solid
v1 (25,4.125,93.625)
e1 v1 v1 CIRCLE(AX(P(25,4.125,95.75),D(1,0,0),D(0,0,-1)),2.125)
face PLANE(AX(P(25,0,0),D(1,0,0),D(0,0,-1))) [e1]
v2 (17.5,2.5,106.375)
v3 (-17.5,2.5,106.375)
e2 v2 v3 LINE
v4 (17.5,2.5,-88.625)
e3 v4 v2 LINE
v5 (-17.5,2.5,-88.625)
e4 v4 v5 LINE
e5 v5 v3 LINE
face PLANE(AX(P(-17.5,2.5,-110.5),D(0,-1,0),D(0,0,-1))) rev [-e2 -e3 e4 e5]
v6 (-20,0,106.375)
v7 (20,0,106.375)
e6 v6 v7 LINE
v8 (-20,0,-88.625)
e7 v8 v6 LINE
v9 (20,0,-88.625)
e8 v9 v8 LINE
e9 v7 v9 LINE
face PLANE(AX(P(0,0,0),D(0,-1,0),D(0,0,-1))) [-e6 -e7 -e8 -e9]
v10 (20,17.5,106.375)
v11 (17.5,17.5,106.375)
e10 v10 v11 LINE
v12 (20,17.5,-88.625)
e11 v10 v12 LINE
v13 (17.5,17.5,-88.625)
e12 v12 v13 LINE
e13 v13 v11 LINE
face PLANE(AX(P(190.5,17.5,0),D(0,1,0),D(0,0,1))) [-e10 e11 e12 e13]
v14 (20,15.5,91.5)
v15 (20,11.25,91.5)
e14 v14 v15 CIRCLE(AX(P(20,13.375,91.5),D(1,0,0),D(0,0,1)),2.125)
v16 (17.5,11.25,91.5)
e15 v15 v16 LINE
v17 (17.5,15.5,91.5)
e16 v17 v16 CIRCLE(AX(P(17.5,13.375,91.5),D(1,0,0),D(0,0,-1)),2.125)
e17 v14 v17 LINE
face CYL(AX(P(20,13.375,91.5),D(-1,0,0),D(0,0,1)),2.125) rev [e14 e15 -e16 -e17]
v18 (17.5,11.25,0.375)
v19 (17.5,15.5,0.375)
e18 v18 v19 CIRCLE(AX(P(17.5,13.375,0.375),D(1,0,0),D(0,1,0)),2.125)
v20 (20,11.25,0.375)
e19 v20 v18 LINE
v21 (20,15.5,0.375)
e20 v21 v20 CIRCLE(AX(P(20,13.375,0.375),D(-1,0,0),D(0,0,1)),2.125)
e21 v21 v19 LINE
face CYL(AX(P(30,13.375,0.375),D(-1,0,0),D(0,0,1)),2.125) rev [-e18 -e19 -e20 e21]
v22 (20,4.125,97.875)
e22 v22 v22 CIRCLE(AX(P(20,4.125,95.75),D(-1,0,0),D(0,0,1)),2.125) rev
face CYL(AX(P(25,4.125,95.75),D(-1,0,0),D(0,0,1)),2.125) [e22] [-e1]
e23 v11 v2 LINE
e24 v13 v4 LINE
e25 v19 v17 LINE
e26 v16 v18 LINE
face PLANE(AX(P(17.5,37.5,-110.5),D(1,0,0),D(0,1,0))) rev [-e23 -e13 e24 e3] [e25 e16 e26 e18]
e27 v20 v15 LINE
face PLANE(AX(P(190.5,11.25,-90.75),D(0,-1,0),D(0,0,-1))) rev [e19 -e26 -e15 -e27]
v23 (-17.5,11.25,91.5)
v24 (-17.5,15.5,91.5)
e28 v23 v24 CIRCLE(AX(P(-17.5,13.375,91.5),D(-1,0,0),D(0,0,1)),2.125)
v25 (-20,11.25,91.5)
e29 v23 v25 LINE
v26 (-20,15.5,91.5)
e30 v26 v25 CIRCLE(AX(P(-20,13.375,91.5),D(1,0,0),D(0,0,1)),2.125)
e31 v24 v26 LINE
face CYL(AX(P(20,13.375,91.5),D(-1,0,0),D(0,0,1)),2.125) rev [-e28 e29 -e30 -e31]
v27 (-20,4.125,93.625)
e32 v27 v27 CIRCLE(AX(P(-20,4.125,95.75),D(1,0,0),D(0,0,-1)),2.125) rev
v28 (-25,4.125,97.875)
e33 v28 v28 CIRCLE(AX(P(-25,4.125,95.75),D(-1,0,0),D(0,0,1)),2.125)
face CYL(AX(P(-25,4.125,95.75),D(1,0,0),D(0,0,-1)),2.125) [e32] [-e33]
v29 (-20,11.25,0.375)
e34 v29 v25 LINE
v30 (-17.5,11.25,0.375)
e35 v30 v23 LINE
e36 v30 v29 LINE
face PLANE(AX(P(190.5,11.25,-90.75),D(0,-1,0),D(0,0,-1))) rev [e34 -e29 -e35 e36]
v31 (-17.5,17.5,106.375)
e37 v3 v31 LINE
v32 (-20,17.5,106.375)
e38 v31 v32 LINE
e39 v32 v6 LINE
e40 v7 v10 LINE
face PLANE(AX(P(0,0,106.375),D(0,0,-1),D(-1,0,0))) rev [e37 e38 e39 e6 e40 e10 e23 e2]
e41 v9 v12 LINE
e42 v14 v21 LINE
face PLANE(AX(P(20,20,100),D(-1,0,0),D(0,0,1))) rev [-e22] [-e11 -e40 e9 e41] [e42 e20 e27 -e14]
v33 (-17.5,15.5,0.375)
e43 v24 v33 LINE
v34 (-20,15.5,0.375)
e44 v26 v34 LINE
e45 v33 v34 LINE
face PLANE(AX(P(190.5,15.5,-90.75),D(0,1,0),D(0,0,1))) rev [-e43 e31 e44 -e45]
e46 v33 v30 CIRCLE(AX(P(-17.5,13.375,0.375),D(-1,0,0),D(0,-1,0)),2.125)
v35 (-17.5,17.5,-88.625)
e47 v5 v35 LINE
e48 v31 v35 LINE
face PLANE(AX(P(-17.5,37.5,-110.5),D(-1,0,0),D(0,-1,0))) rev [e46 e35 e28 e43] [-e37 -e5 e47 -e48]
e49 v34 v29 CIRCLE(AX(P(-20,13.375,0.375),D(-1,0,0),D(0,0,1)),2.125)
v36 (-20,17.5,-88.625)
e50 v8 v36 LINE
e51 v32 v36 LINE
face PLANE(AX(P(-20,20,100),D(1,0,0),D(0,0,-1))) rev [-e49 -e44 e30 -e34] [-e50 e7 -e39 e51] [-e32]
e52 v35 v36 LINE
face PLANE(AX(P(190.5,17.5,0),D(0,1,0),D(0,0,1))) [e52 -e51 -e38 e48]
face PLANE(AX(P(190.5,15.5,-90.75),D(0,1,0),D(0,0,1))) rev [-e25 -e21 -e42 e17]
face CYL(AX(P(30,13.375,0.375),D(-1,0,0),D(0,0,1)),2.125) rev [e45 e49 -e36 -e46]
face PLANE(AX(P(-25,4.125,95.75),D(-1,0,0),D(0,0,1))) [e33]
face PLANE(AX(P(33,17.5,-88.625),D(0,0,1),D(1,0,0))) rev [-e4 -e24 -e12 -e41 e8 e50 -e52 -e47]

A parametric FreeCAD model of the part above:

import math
import FreeCAD as App
import Part
import Sketcher


def add_polygon(sketch, points):
    """Adds a closed chain of lines whose ends are joined by coincident constraints."""
    first, n = sketch.GeometryCount, len(points)
    for a, b in zip(points, points[1:] + points[:1]):
        sketch.addGeometry(Part.LineSegment(App.Vector(*a, 0), App.Vector(*b, 0)), False)
    for i in range(n):
        sketch.addConstraint(Sketcher.Constraint("Coincident", first + i, 2, first + (i + 1) % n, 1))

doc = App.newDocument("Part")
body = doc.addObject("PartDesign::Body", "Body")

# Sketch on XZ plane
sketch1 = body.newObject("Sketcher::SketchObject", "Sketch")
sketch1.AttachmentSupport = (doc.getObject("XZ_Plane"), [""])
sketch1.MapMode = "FlatFace"
add_polygon(sketch1, [(-20, -100), (-20, 100), (20, 100), (20, -100)])  # lines 0-3
sketch1.addConstraint(Sketcher.Constraint("Vertical", 0))
sketch1.addConstraint(Sketcher.Constraint("Horizontal", 1))
sketch1.addConstraint(Sketcher.Constraint("Vertical", 2))
sketch1.addConstraint(Sketcher.Constraint("Horizontal", 3))
sketch1.addConstraint(Sketcher.Constraint("Symmetric", 0, 2, 2, 2, -1, 1))
sketch1.addConstraint(Sketcher.Constraint("DistanceX", 1, 1, 1, 2, 40.0))
sketch1.addConstraint(Sketcher.Constraint("DistanceY", 0, 1, 0, 2, 200.0))
pad1 = body.newObject("PartDesign::Pad", "Pad")
pad1.Profile = sketch1
pad1.Length = 20
pad1.Reversed = True

# Sketch on YZ plane
sketch2 = body.newObject("Sketcher::SketchObject", "Sketch001")
sketch2.AttachmentSupport = (doc.getObject("YZ_Plane"), [""])
sketch2.MapMode = "FlatFace"
sketch2.AttachmentOffset = App.Placement(App.Vector(0, 0, 20), App.Rotation())
sketch2.addGeometry(Part.Circle(App.Vector(4.125, 95.75, 0), App.Vector(0, 0, 1), 2.125), False)
sketch2.addConstraint(Sketcher.Constraint("Diameter", 0, 4.25))
sketch2.addConstraint(Sketcher.Constraint("DistanceY", -1, 1, 0, 3, 95.75))
sketch2.addConstraint(Sketcher.Constraint("DistanceX", -1, 1, 0, 3, 4.125))
pad2 = body.newObject("PartDesign::Pad", "Pad001")
pad2.Profile = sketch2
pad2.Length = 5

# Sketch on YZ plane
sketch3 = body.newObject("Sketcher::SketchObject", "Sketch002")
sketch3.AttachmentSupport = (doc.getObject("YZ_Plane"), [""])
sketch3.MapMode = "FlatFace"
sketch3.AttachmentOffset = App.Placement(App.Vector(0, 0, -25), App.Rotation())
sketch3.addGeometry(Part.Circle(App.Vector(4.125, 95.75, 0), App.Vector(0, 0, 1), 2.125), False)
sketch3.addConstraint(Sketcher.Constraint("Diameter", 0, 4.25))
sketch3.addConstraint(Sketcher.Constraint("DistanceY", -1, 1, 0, 3, 95.75))
sketch3.addConstraint(Sketcher.Constraint("DistanceX", -1, 1, 0, 3, 4.125))
pad3 = body.newObject("PartDesign::Pad", "Pad002")
pad3.Profile = sketch3
pad3.Length = 5

# Sketch on XY plane
sketch4 = body.newObject("Sketcher::SketchObject", "Sketch003")
sketch4.AttachmentSupport = (doc.getObject("XY_Plane"), [""])
sketch4.MapMode = "FlatFace"
sketch4.AttachmentOffset = App.Placement(App.Vector(0, 0, 100), App.Rotation())
add_polygon(sketch4, [(-17.5, 37.5), (-17.5, 2.5), (17.5, 2.5), (17.5, 37.5)])  # lines 0-3
sketch4.addConstraint(Sketcher.Constraint("Vertical", 0))
sketch4.addConstraint(Sketcher.Constraint("Horizontal", 1))
sketch4.addConstraint(Sketcher.Constraint("Vertical", 2))
sketch4.addConstraint(Sketcher.Constraint("Horizontal", 3))
sketch4.addConstraint(Sketcher.Constraint("Equal", 3, 0))
sketch4.addConstraint(Sketcher.Constraint("DistanceX", 1, 1, 1, 2, 35.0))
sketch4.addConstraint(Sketcher.Constraint("DistanceX", 0, 2, -1, 1, 17.5))
sketch4.addConstraint(Sketcher.Constraint("DistanceY", -1, 1, 0, 2, 2.5))
pocket1 = body.newObject("PartDesign::Pocket", "Pocket")
pocket1.Profile = sketch4
pocket1.Length = 210.5

# Sketch on YZ plane
sketch5 = body.newObject("Sketcher::SketchObject", "Sketch004")
sketch5.AttachmentSupport = (doc.getObject("YZ_Plane"), [""])
sketch5.MapMode = "FlatFace"
sketch5.AttachmentOffset = App.Placement(App.Vector(0, 0, -20), App.Rotation())
add_polygon(sketch5, [(0, -100), (0, -95), (17.5, -95), (17.5, 100), (20, 100), (20, -100)])  # lines 0-5
sketch5.addConstraint(Sketcher.Constraint("Vertical", 0))
sketch5.addConstraint(Sketcher.Constraint("Horizontal", 1))
sketch5.addConstraint(Sketcher.Constraint("Vertical", 2))
sketch5.addConstraint(Sketcher.Constraint("Horizontal", 3))
sketch5.addConstraint(Sketcher.Constraint("Vertical", 4))
sketch5.addConstraint(Sketcher.Constraint("Horizontal", 5))
sketch5.addConstraint(Sketcher.Constraint("PointOnObject", 0, 2, -2))
sketch5.addConstraint(Sketcher.Constraint("DistanceX", 5, 2, 5, 1, 20.0))
sketch5.addConstraint(Sketcher.Constraint("DistanceY", 0, 1, 0, 2, 5.0))
sketch5.addConstraint(Sketcher.Constraint("DistanceY", 2, 1, 2, 2, 195.0))
sketch5.addConstraint(Sketcher.Constraint("DistanceX", 1, 1, 1, 2, 17.5))
sketch5.addConstraint(Sketcher.Constraint("DistanceY", 0, 2, -1, 1, 95.0))
pocket2 = body.newObject("PartDesign::Pocket", "Pocket001")
pocket2.Profile = sketch5
pocket2.Length = 210.5
pocket2.Reversed = True

# Sketch on YZ plane
sketch6 = body.newObject("Sketcher::SketchObject", "Sketch005")
sketch6.AttachmentSupport = (doc.getObject("YZ_Plane"), [""])
sketch6.MapMode = "FlatFace"
sketch6.AttachmentOffset = App.Placement(App.Vector(0, 0, -20), App.Rotation())
sketch6.addGeometry(Part.LineSegment(App.Vector(15.5, 95.75, 0), App.Vector(15.5, -90.75, 0)), False)
sketch6.addGeometry(Part.ArcOfCircle(Part.Circle(App.Vector(13.375, -90.75, 0), App.Vector(0, 0, 1), 2.125), math.radians(180), math.radians(360)), False)
sketch6.addGeometry(Part.LineSegment(App.Vector(11.25, -90.75, 0), App.Vector(11.25, 95.75, 0)), False)
sketch6.addGeometry(Part.ArcOfCircle(Part.Circle(App.Vector(13.375, 95.75, 0), App.Vector(0, 0, 1), 2.125), math.radians(0), math.radians(180)), False)
sketch6.addConstraint(Sketcher.Constraint("Tangent", 0, 2, 1, 2))
sketch6.addConstraint(Sketcher.Constraint("Tangent", 1, 1, 2, 1))
sketch6.addConstraint(Sketcher.Constraint("Tangent", 2, 2, 3, 2))
sketch6.addConstraint(Sketcher.Constraint("Tangent", 3, 1, 0, 1))
sketch6.addConstraint(Sketcher.Constraint("Vertical", 0))
sketch6.addConstraint(Sketcher.Constraint("Vertical", 2))
sketch6.addConstraint(Sketcher.Constraint("DistanceY", 0, 2, 0, 1, 186.5))
sketch6.addConstraint(Sketcher.Constraint("Radius", 1, 2.125))
sketch6.addConstraint(Sketcher.Constraint("DistanceX", -1, 1, 0, 2, 15.5))
sketch6.addConstraint(Sketcher.Constraint("DistanceY", 1, 3, -1, 1, 90.75))
pocket3 = body.newObject("PartDesign::Pocket", "Pocket002")
pocket3.Profile = sketch6
pocket3.Length = 210.5
pocket3.Reversed = True

# Sketch on YZ plane
sketch7 = body.newObject("Sketcher::SketchObject", "Sketch006")
sketch7.AttachmentSupport = (doc.getObject("YZ_Plane"), [""])
sketch7.MapMode = "FlatFace"
sketch7.AttachmentOffset = App.Placement(App.Vector(0, 0, -20), App.Rotation())
sketch7.addGeometry(Part.LineSegment(App.Vector(11.25, -95, 0), App.Vector(11.25, 6.75, 0)), False)
sketch7.addGeometry(Part.ArcOfCircle(Part.Circle(App.Vector(13.375, 6.75, 0), App.Vector(0, 0, 1), 2.125), math.radians(180), math.radians(360)), False)
sketch7.addGeometry(Part.LineSegment(App.Vector(15.5, 6.75, 0), App.Vector(15.5, -95, 0)), False)
sketch7.addGeometry(Part.LineSegment(App.Vector(15.5, -95, 0), App.Vector(11.25, -95, 0)), False)
sketch7.addConstraint(Sketcher.Constraint("Tangent", 0, 2, 1, 1))
sketch7.addConstraint(Sketcher.Constraint("Tangent", 1, 2, 2, 1))
sketch7.addConstraint(Sketcher.Constraint("Coincident", 2, 2, 3, 1))
sketch7.addConstraint(Sketcher.Constraint("Coincident", 3, 2, 0, 1))
sketch7.addConstraint(Sketcher.Constraint("Vertical", 0))
sketch7.addConstraint(Sketcher.Constraint("Vertical", 2))
sketch7.addConstraint(Sketcher.Constraint("Horizontal", 3))
sketch7.addConstraint(Sketcher.Constraint("DistanceY", 2, 2, -1, 1, 95.0))
sketch7.addConstraint(Sketcher.Constraint("Radius", 1, 2.125))
sketch7.addConstraint(Sketcher.Constraint("DistanceY", 0, 1, 0, 2, 101.75))
sketch7.addConstraint(Sketcher.Constraint("DistanceX", -1, 1, 1, 2, 15.5))
pad4 = body.newObject("PartDesign::Pad", "Pad003")
pad4.Profile = sketch7
pad4.Length = 40

# Sketch on XY plane
sketch8 = body.newObject("Sketcher::SketchObject", "Sketch007")
sketch8.AttachmentSupport = (doc.getObject("XY_Plane"), [""])
sketch8.MapMode = "FlatFace"
sketch8.AttachmentOffset = App.Placement(App.Vector(0, 0, -95), App.Rotation())
add_polygon(sketch8, [(17.5, 15.5), (17.5, 11.25), (-17.5, 11.25), (-17.5, 15.5)])  # lines 0-3
sketch8.addConstraint(Sketcher.Constraint("Vertical", 0))
sketch8.addConstraint(Sketcher.Constraint("Horizontal", 1))
sketch8.addConstraint(Sketcher.Constraint("Vertical", 2))
sketch8.addConstraint(Sketcher.Constraint("Horizontal", 3))
sketch8.addConstraint(Sketcher.Constraint("DistanceX", 1, 2, 1, 1, 35.0))
sketch8.addConstraint(Sketcher.Constraint("DistanceY", 0, 2, 0, 1, 4.25))
sketch8.addConstraint(Sketcher.Constraint("DistanceX", -1, 1, 0, 2, 17.5))
sketch8.addConstraint(Sketcher.Constraint("DistanceY", -1, 1, 2, 2, 15.5))
pocket4 = body.newObject("PartDesign::Pocket", "Pocket003")
pocket4.Profile = sketch8
pocket4.Length = 141
pocket4.Reversed = True

# Sketch on YZ plane
sketch9 = body.newObject("Sketcher::SketchObject", "Sketch008")
sketch9.AttachmentSupport = (doc.getObject("YZ_Plane"), [""])
sketch9.MapMode = "FlatFace"
sketch9.AttachmentOffset = App.Placement(App.Vector(0, 0, -20), App.Rotation())
sketch9.addGeometry(Part.LineSegment(App.Vector(11.25, 0.375, 0), App.Vector(11.25, 6.75, 0)), False)
sketch9.addGeometry(Part.LineSegment(App.Vector(11.25, 6.75, 0), App.Vector(15.5, 6.75, 0)), False)
sketch9.addGeometry(Part.LineSegment(App.Vector(15.5, 6.75, 0), App.Vector(15.5, 0.375, 0)), False)
sketch9.addGeometry(Part.ArcOfCircle(Part.Circle(App.Vector(13.375, 0.375, 0), App.Vector(0, 0, 1), 2.125), math.radians(180), math.radians(360)), False)
sketch9.addConstraint(Sketcher.Constraint("Coincident", 0, 2, 1, 1))
sketch9.addConstraint(Sketcher.Constraint("Coincident", 1, 2, 2, 1))
sketch9.addConstraint(Sketcher.Constraint("Tangent", 2, 2, 3, 2))
sketch9.addConstraint(Sketcher.Constraint("Tangent", 3, 1, 0, 1))
sketch9.addConstraint(Sketcher.Constraint("Vertical", 0))
sketch9.addConstraint(Sketcher.Constraint("Horizontal", 1))
sketch9.addConstraint(Sketcher.Constraint("Vertical", 2))
sketch9.addConstraint(Sketcher.Constraint("Radius", 3, 2.125))
sketch9.addConstraint(Sketcher.Constraint("DistanceX", -1, 1, 1, 2, 15.5))
sketch9.addConstraint(Sketcher.Constraint("DistanceY", 0, 1, 0, 2, 6.375))
sketch9.addConstraint(Sketcher.Constraint("DistanceY", -1, 1, 0, 2, 6.75))
pocket5 = body.newObject("PartDesign::Pocket", "Pocket004")
pocket5.Profile = sketch9
pocket5.Length = 50
pocket5.Reversed = True

# Sketch on YZ plane
sketch10 = body.newObject("Sketcher::SketchObject", "Sketch009")
sketch10.AttachmentSupport = (doc.getObject("YZ_Plane"), [""])
sketch10.MapMode = "FlatFace"
sketch10.AttachmentOffset = App.Placement(App.Vector(0, 0, -20), App.Rotation())
sketch10.addGeometry(Part.LineSegment(App.Vector(15.5, 95.75, 0), App.Vector(15.5, 91.5, 0)), False)
sketch10.addGeometry(Part.ArcOfCircle(Part.Circle(App.Vector(13.375, 91.5, 0), App.Vector(0, 0, 1), 2.125), math.radians(0), math.radians(180)), False)
sketch10.addGeometry(Part.LineSegment(App.Vector(11.25, 91.5, 0), App.Vector(11.25, 95.75, 0)), False)
sketch10.addGeometry(Part.ArcOfCircle(Part.Circle(App.Vector(13.375, 95.75, 0), App.Vector(0, 0, 1), 2.125), math.radians(0), math.radians(180)), False)
sketch10.addConstraint(Sketcher.Constraint("Tangent", 0, 2, 1, 1))
sketch10.addConstraint(Sketcher.Constraint("Tangent", 1, 2, 2, 1))
sketch10.addConstraint(Sketcher.Constraint("Tangent", 2, 2, 3, 2))
sketch10.addConstraint(Sketcher.Constraint("Tangent", 3, 1, 0, 1))
sketch10.addConstraint(Sketcher.Constraint("Vertical", 0))
sketch10.addConstraint(Sketcher.Constraint("Vertical", 2))
sketch10.addConstraint(Sketcher.Constraint("Radius", 1, 2.125))
sketch10.addConstraint(Sketcher.Constraint("DistanceY", 0, 2, 0, 1, 4.25))
sketch10.addConstraint(Sketcher.Constraint("DistanceY", -1, 1, 1, 3, 91.5))
sketch10.addConstraint(Sketcher.Constraint("DistanceX", -1, 1, 0, 2, 15.5))
pad5 = body.newObject("PartDesign::Pad", "Pad004")
pad5.Profile = sketch10
pad5.Length = 40

# Sketch on XY plane
sketch11 = body.newObject("Sketcher::SketchObject", "Sketch010")
sketch11.AttachmentSupport = (doc.getObject("XY_Plane"), [""])
sketch11.MapMode = "FlatFace"
sketch11.AttachmentOffset = App.Placement(App.Vector(0, 0, 100), App.Rotation())
add_polygon(sketch11, [(-17.5, 15.5), (-17.5, 11.25), (17.5, 11.25), (17.5, 15.5)])  # lines 0-3
sketch11.addConstraint(Sketcher.Constraint("Vertical", 0))
sketch11.addConstraint(Sketcher.Constraint("Horizontal", 1))
sketch11.addConstraint(Sketcher.Constraint("Vertical", 2))
sketch11.addConstraint(Sketcher.Constraint("Horizontal", 3))
sketch11.addConstraint(Sketcher.Constraint("DistanceX", 1, 1, 1, 2, 35.0))
sketch11.addConstraint(Sketcher.Constraint("DistanceY", 0, 2, 0, 1, 4.25))
sketch11.addConstraint(Sketcher.Constraint("DistanceX", 0, 2, -1, 1, 17.5))
sketch11.addConstraint(Sketcher.Constraint("DistanceY", -1, 1, 2, 2, 15.5))
pocket6 = body.newObject("PartDesign::Pocket", "Pocket005")
pocket6.Profile = sketch11
pocket6.Length = 40

# Sketch on YZ plane
sketch12 = body.newObject("Sketcher::SketchObject", "Sketch011")
sketch12.AttachmentSupport = (doc.getObject("YZ_Plane"), [""])
sketch12.MapMode = "FlatFace"
sketch12.AttachmentOffset = App.Placement(App.Vector(0, 0, -20), App.Rotation())
add_polygon(sketch12, [(17.5, -95), (0, -95), (0, -88.625), (17.5, -88.625)])  # lines 0-3
sketch12.addConstraint(Sketcher.Constraint("Horizontal", 0))
sketch12.addConstraint(Sketcher.Constraint("Vertical", 1))
sketch12.addConstraint(Sketcher.Constraint("Horizontal", 2))
sketch12.addConstraint(Sketcher.Constraint("Vertical", 3))
sketch12.addConstraint(Sketcher.Constraint("PointOnObject", 0, 2, -2))
sketch12.addConstraint(Sketcher.Constraint("DistanceX", 0, 2, 0, 1, 17.5))
sketch12.addConstraint(Sketcher.Constraint("DistanceY", 0, 2, -1, 1, 95.0))
sketch12.addConstraint(Sketcher.Constraint("DistanceY", 1, 1, 1, 2, 6.375))
pocket7 = body.newObject("PartDesign::Pocket", "Pocket006")
pocket7.Profile = sketch12
pocket7.Length = 53
pocket7.Reversed = True

# Sketch on XY plane
sketch13 = body.newObject("Sketcher::SketchObject", "Sketch012")
sketch13.AttachmentSupport = (doc.getObject("XY_Plane"), [""])
sketch13.MapMode = "FlatFace"
sketch13.AttachmentOffset = App.Placement(App.Vector(0, 0, 100), App.Rotation())
add_polygon(sketch13, [(-17.5, 17.5), (-20, 17.5), (-20, 0), (20, 0), (20, 17.5), (17.5, 17.5), (17.5, 2.5), (-17.5, 2.5)])  # lines 0-7
sketch13.addConstraint(Sketcher.Constraint("Horizontal", 0))
sketch13.addConstraint(Sketcher.Constraint("Vertical", 1))
sketch13.addConstraint(Sketcher.Constraint("Horizontal", 2))
sketch13.addConstraint(Sketcher.Constraint("Vertical", 3))
sketch13.addConstraint(Sketcher.Constraint("Horizontal", 4))
sketch13.addConstraint(Sketcher.Constraint("Vertical", 5))
sketch13.addConstraint(Sketcher.Constraint("Horizontal", 6))
sketch13.addConstraint(Sketcher.Constraint("Vertical", 7))
sketch13.addConstraint(Sketcher.Constraint("Symmetric", 1, 2, 2, 2, -1, 1))
sketch13.addConstraint(Sketcher.Constraint("Symmetric", 4, 2, 7, 2, -2))
sketch13.addConstraint(Sketcher.Constraint("DistanceX", 2, 1, 2, 2, 40.0))
sketch13.addConstraint(Sketcher.Constraint("DistanceX", 6, 2, 6, 1, 35.0))
sketch13.addConstraint(Sketcher.Constraint("DistanceY", 5, 2, 5, 1, 15.0))
sketch13.addConstraint(Sketcher.Constraint("DistanceY", 1, 2, 1, 1, 17.5))
pad6 = body.newObject("PartDesign::Pad", "Pad005")
pad6.Profile = sketch13
pad6.Length = 6.375

doc.recompute()
